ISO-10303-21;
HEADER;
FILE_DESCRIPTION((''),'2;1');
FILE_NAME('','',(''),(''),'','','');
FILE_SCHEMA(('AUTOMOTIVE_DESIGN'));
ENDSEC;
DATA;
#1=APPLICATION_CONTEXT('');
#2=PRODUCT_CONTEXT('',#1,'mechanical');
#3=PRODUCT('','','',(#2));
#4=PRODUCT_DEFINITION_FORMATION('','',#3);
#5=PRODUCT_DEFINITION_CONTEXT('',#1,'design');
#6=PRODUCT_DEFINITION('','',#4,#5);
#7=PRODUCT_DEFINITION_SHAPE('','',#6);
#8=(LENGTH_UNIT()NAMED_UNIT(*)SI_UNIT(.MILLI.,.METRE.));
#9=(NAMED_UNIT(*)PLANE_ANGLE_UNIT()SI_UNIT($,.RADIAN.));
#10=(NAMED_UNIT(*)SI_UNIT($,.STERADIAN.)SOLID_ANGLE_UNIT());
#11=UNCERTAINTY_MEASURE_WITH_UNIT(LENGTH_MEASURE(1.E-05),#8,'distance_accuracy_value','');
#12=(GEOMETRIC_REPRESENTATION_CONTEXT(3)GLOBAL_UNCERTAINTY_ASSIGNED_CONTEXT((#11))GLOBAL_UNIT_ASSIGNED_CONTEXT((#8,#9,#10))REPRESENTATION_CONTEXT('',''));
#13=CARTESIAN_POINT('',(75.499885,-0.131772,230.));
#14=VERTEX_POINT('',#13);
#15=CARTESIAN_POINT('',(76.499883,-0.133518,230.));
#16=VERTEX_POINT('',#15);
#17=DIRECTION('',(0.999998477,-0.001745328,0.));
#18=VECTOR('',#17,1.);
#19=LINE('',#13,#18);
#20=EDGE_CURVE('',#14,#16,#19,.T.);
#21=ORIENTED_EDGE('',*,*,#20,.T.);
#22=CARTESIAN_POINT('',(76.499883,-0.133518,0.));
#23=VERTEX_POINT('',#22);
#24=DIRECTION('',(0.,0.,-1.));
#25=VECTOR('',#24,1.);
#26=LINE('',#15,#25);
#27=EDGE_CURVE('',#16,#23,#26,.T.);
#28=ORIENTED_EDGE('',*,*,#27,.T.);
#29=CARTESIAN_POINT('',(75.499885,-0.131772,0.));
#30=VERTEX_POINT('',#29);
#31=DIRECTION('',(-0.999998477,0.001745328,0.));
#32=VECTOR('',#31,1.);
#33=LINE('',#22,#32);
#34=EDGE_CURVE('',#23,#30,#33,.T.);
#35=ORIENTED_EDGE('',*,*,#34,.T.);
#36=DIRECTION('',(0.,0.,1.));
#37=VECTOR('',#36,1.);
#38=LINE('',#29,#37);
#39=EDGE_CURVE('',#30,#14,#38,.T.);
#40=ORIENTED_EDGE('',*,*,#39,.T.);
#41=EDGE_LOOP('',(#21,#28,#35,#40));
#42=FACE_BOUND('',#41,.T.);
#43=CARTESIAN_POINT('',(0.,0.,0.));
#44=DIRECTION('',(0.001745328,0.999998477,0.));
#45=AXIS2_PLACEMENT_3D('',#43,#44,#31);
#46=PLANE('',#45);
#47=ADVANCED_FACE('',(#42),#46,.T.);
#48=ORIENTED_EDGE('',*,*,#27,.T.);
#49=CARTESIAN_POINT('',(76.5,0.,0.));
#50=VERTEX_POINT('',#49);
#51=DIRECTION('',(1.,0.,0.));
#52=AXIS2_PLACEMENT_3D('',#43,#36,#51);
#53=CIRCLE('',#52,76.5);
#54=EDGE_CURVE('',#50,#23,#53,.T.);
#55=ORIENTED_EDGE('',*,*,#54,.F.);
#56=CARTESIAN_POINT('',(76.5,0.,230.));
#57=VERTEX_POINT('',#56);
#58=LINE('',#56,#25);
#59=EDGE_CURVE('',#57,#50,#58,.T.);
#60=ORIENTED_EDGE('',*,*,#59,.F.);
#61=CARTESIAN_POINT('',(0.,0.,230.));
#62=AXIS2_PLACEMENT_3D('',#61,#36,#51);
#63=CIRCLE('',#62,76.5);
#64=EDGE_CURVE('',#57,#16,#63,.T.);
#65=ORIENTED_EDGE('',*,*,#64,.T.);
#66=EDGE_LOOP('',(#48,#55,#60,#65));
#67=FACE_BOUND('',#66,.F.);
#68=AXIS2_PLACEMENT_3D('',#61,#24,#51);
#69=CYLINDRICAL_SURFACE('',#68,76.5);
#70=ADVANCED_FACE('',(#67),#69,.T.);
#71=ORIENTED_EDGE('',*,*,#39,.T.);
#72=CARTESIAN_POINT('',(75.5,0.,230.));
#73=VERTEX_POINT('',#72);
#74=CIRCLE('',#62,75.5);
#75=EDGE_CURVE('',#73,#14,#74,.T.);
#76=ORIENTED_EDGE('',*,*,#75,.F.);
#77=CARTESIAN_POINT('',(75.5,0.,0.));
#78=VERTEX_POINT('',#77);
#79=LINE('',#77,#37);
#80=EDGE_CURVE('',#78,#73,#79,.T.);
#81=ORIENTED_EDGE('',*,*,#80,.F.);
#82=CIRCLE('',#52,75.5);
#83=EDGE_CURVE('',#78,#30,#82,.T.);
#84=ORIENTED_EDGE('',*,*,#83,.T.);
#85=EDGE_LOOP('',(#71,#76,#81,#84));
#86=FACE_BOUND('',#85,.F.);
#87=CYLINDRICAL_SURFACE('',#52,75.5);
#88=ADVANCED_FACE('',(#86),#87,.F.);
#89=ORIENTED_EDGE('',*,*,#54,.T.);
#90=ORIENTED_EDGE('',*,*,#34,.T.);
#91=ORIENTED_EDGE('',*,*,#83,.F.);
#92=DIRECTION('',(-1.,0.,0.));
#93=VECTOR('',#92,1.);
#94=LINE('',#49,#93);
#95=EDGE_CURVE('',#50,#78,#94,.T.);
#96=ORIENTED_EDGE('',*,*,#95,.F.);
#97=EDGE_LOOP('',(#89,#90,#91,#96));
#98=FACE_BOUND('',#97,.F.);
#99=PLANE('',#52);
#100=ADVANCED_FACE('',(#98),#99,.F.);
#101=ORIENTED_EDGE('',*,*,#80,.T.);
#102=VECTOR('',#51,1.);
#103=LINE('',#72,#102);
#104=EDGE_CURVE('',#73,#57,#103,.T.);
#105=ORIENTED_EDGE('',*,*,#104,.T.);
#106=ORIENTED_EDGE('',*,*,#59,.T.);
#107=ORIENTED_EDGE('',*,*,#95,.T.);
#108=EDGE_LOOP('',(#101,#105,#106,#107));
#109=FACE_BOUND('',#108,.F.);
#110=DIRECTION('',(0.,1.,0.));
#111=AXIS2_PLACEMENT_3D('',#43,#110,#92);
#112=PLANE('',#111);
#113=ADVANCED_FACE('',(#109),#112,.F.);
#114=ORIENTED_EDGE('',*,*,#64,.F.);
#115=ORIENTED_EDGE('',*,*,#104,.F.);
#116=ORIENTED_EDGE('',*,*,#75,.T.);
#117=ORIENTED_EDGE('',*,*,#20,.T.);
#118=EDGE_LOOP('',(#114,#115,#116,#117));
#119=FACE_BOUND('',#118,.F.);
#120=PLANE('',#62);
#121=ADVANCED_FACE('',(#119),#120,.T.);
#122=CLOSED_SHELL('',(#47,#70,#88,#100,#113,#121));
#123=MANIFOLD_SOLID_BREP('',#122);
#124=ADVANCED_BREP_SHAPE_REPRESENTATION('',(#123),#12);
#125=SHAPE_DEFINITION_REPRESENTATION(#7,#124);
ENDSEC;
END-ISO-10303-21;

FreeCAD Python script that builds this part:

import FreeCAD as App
import Part
import Sketcher

V = App.Vector
Q = App.Units.Quantity


def add_polygon(sketch, points):
    """Adds a closed chain of lines whose ends are joined by coincident constraints."""
    first, n = sketch.GeometryCount, len(points)
    for a, b in zip(points, points[1:] + points[:1]):
        sketch.addGeometry(Part.LineSegment(App.Vector(*a, 0), App.Vector(*b, 0)), False)
    for i in range(n):
        sketch.addConstraint(Sketcher.Constraint("Coincident", first + i, 2, first + (i + 1) % n, 1))

doc = App.newDocument("Part")
body = doc.addObject("PartDesign::Body", "Body")

# Sketch on XZ plane
sketch1 = body.newObject("Sketcher::SketchObject", "Sketch")
sketch1.AttachmentSupport = (doc.getObject("XZ_Plane"), [""])
sketch1.MapMode = "FlatFace"
add_polygon(sketch1, [(75.5, 0), (75.5, 230), (76.5, 230), (76.5, 0)])  # lines 0-3
sketch1.addConstraint(Sketcher.Constraint("Vertical", 0))
sketch1.addConstraint(Sketcher.Constraint("Horizontal", 1))
sketch1.addConstraint(Sketcher.Constraint("Vertical", 2))
sketch1.addConstraint(Sketcher.Constraint("Horizontal", 3))
sketch1.addConstraint(Sketcher.Constraint("PointOnObject", 2, 2, -1))
sketch1.addConstraint(Sketcher.Constraint("DistanceX", 1, 1, 1, 2, Q("1 mm")))
sketch1.addConstraint(Sketcher.Constraint("DistanceY", 0, 1, 0, 2, Q("230 mm")))
sketch1.addConstraint(Sketcher.Constraint("DistanceX", -1, 1, 0, 2, Q("75.5 mm")))
revolution = body.newObject("PartDesign::Revolution", "Revolution")
revolution.Profile = sketch1
revolution.ReferenceAxis = (sketch1, ["V_Axis"])
revolution.Angle = 359.9

doc.recompute()
